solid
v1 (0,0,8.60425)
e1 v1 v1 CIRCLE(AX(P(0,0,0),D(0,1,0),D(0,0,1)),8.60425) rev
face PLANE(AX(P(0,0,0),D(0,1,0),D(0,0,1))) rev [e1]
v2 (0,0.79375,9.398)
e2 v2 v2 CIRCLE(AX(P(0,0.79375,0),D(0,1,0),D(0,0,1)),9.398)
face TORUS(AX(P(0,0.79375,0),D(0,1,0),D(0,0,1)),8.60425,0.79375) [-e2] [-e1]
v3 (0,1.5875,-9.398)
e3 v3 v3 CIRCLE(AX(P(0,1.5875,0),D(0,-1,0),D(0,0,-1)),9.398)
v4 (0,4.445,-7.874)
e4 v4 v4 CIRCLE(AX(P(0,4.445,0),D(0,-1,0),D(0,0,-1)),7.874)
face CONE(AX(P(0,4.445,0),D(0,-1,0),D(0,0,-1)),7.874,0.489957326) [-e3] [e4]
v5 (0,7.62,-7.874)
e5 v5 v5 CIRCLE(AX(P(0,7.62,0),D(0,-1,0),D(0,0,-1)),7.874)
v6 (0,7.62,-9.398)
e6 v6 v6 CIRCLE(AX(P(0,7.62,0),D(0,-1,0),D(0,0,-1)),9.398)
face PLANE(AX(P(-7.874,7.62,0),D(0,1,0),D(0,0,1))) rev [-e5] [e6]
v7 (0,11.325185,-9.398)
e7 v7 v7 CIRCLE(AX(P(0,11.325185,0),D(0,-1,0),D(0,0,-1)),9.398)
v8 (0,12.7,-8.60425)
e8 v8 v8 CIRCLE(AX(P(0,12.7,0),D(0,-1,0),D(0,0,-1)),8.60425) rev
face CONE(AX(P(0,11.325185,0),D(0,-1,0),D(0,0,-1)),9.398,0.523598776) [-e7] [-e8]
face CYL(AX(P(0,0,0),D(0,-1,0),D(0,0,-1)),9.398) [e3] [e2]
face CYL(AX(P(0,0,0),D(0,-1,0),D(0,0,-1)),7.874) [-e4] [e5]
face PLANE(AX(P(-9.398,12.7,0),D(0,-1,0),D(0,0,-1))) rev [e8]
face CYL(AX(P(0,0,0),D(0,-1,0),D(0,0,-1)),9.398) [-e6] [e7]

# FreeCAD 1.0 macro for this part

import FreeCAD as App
import Part
import Sketcher

V = App.Vector
Q = App.Units.Quantity


def edges_at(feature, points):
    """Names of the edges that pass closest to the given points."""
    edges = feature.Shape.Edges
    near = lambda p: min(range(len(edges)), key=lambda i: edges[i].distToShape(Part.Vertex(*p))[0])
    return sorted({f"Edge{near(p) + 1}" for p in points})

doc = App.newDocument("Part")
body = doc.addObject("PartDesign::Body", "Body")

# Sketch on XY plane
sketch1 = body.newObject("Sketcher::SketchObject", "Sketch")
sketch1.AttachmentSupport = (doc.getObject("XY_Plane"), [""])
sketch1.MapMode = "FlatFace"
sketch1.addGeometry(Part.LineSegment(V(-9.4, 0, 0), V(0, 0, 0)), False)
sketch1.addGeometry(Part.LineSegment(V(0, 0, 0), V(0, 12.7, 0)), False)
sketch1.addGeometry(Part.LineSegment(V(0, 12.7, 0), V(-9.4, 12.7, 0)), False)
sketch1.addGeometry(Part.LineSegment(V(-9.4, 12.7, 0), V(-9.4, 7.6, 0)), False)
sketch1.addGeometry(Part.LineSegment(V(-9.4, 7.6, 0), V(-7.9, 7.6, 0)), False)
sketch1.addGeometry(Part.LineSegment(V(-7.9, 7.6, 0), V(-7.9, 4.4, 0)), False)
sketch1.addGeometry(Part.LineSegment(V(-7.9, 4.4, 0), V(-9.4, 1.6, 0)), False)
sketch1.addGeometry(Part.LineSegment(V(-9.4, 1.6, 0), V(-9.4, 0, 0)), False)
sketch1.addConstraint(Sketcher.Constraint("Coincident", 0, 2, 1, 1))
sketch1.addConstraint(Sketcher.Constraint("Coincident", 1, 2, 2, 1))
sketch1.addConstraint(Sketcher.Constraint("Coincident", 2, 2, 3, 1))
sketch1.addConstraint(Sketcher.Constraint("Coincident", 3, 2, 4, 1))
sketch1.addConstraint(Sketcher.Constraint("Coincident", 4, 2, 5, 1))
sketch1.addConstraint(Sketcher.Constraint("Coincident", 5, 2, 6, 1))
sketch1.addConstraint(Sketcher.Constraint("Coincident", 6, 2, 7, 1))
sketch1.addConstraint(Sketcher.Constraint("Coincident", 7, 2, 0, 1))
sketch1.addConstraint(Sketcher.Constraint("Horizontal", 0))
sketch1.addConstraint(Sketcher.Constraint("Vertical", 1))
sketch1.addConstraint(Sketcher.Constraint("Horizontal", 2))
sketch1.addConstraint(Sketcher.Constraint("Vertical", 3))
sketch1.addConstraint(Sketcher.Constraint("Horizontal", 4))
sketch1.addConstraint(Sketcher.Constraint("Vertical", 5))
sketch1.addConstraint(Sketcher.Constraint("Vertical", 7))
sketch1.addConstraint(Sketcher.Constraint("Coincident", 0, 2, -1, 1))
sketch1.addConstraint(Sketcher.Constraint("Vertical", 3, 2, 6, 2))
sketch1.addConstraint(Sketcher.Constraint("DistanceY", 1, 1, 1, 2, Q("0.5 in")))
sketch1.addConstraint(Sketcher.Constraint("DistanceY", 3, 2, 3, 1, Q("0.2 in")))
sketch1.addConstraint(Sketcher.Constraint("DistanceX", 0, 1, 0, 2, Q("0.37 in")))
sketch1.addConstraint(Sketcher.Constraint("DistanceX", 4, 1, 4, 2, Q("0.06 in")))
sketch1.addConstraint(Sketcher.Constraint("DistanceY", 5, 2, 5, 1, Q("0.125 in")))
sketch1.addConstraint(Sketcher.Constraint("DistanceY", 7, 2, 7, 1, Q("0.0625 in")))
revolution = body.newObject("PartDesign::Revolution", "Revolution")
revolution.Profile = sketch1
revolution.ReferenceAxis = (sketch1, ["V_Axis"])
revolution.Angle = 360
doc.recompute()

fillet = body.newObject("PartDesign::Fillet", "Fillet")
fillet.Base = (revolution, edges_at(revolution, [(9.398, 0, 0)]))
fillet.Radius = Q("0.03125 in")
doc.recompute()

chamfer = body.newObject("PartDesign::Chamfer", "Chamfer")
chamfer.Base = (fillet, edges_at(fillet, [(9.398, 12.7, 0)]))
chamfer.ChamferType = "Two distances"
chamfer.Size = Q("0.03125 in")
chamfer.Size2 = 1.374815
chamfer.FlipDirection = True

doc.recompute()
